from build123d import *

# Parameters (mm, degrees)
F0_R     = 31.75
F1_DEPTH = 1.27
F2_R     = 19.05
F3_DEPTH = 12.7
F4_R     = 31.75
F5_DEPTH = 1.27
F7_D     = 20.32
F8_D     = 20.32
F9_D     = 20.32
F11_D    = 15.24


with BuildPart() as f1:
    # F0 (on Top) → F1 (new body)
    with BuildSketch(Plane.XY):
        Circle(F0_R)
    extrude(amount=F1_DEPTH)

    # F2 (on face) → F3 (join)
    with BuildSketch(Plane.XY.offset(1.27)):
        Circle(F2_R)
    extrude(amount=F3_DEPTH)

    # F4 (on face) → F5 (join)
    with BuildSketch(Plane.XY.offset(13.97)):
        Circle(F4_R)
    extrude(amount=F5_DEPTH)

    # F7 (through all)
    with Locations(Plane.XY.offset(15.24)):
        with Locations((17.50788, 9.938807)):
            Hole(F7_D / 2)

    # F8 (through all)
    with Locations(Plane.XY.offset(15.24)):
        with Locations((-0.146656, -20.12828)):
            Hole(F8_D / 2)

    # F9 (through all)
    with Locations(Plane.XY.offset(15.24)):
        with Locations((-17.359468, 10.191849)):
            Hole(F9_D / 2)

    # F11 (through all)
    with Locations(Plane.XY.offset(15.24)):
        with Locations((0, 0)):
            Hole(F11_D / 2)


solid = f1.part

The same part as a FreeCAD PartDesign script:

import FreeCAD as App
import Part
import Sketcher
from FreeCAD import Vector
Q = App.Units.Quantity

doc = App.newDocument("Part")
body = doc.addObject("PartDesign::Body", "Body")

# Sketch on XY plane
sketch1 = body.newObject("Sketcher::SketchObject", "Sketch")
sketch1.AttachmentSupport = (doc.getObject("XY_Plane"), [""])
sketch1.MapMode = "FlatFace"
sketch1.addGeometry(Part.Circle(Vector(0, 0, 0), Vector(0, 0, 1), 31.75), False)
sketch1.addConstraint(Sketcher.Constraint("Coincident", 0, 3, -1, 1))
sketch1.addConstraint(Sketcher.Constraint("Diameter", 0, Q("2.5 in")))
pad1 = body.newObject("PartDesign::Pad", "Pad")
pad1.Profile = sketch1
pad1.Length = Q("0.05 in")

# Sketch on XY plane
sketch2 = body.newObject("Sketcher::SketchObject", "Sketch001")
sketch2.AttachmentSupport = (doc.getObject("XY_Plane"), [""])
sketch2.MapMode = "FlatFace"
sketch2.AttachmentOffset = App.Placement(Vector(0, 0, 0.05 * 25.4), App.Rotation())
sketch2.addGeometry(Part.Circle(Vector(0, 0, 0), Vector(0, 0, 1), 19.05), False)
sketch2.addConstraint(Sketcher.Constraint("Coincident", 0, 3, -1, 1))
sketch2.addConstraint(Sketcher.Constraint("Diameter", 0, Q("1.5 in")))
pad2 = body.newObject("PartDesign::Pad", "Pad001")
pad2.Profile = sketch2
pad2.Length = Q("0.5 in")

# Sketch on XY plane
sketch3 = body.newObject("Sketcher::SketchObject", "Sketch002")
sketch3.AttachmentSupport = (doc.getObject("XY_Plane"), [""])
sketch3.MapMode = "FlatFace"
sketch3.AttachmentOffset = App.Placement(Vector(0, 0, 0.55 * 25.4), App.Rotation())
sketch3.addGeometry(Part.Circle(Vector(0, 0, 0), Vector(0, 0, 1), 31.75), False)
sketch3.addConstraint(Sketcher.Constraint("Coincident", 0, 3, -1, 1))
sketch3.addConstraint(Sketcher.Constraint("Diameter", 0, Q("2.5 in")))
pad3 = body.newObject("PartDesign::Pad", "Pad002")
pad3.Profile = sketch3
pad3.Length = Q("0.05 in")

# Sketch on XY plane
sketch4 = body.newObject("Sketcher::SketchObject", "Sketch003")
sketch4.AttachmentSupport = (doc.getObject("XY_Plane"), [""])
sketch4.MapMode = "FlatFace"
sketch4.AttachmentOffset = App.Placement(Vector(0, 0, 0.6 * 25.4), App.Rotation())
sketch4.addGeometry(Part.Circle(Vector(17.50788, 9.938807, 0), Vector(0, 0, 1), 10.16), False)
sketch4.addConstraint(Sketcher.Constraint("Diameter", 0, Q("0.8 in")))
sketch4.addConstraint(Sketcher.Constraint("DistanceX", -1, 1, 0, 3, 17.50788))
sketch4.addConstraint(Sketcher.Constraint("DistanceY", -1, 1, 0, 3, 9.938807))
doc.recompute()
hole = body.newObject("PartDesign::Hole", "Hole")
hole.Profile = sketch4
hole.ThreadType = "None"
hole.Diameter = Q("0.8 in")
hole.DepthType = "ThroughAll"

# Sketch on XY plane
sketch5 = body.newObject("Sketcher::SketchObject", "Sketch004")
sketch5.AttachmentSupport = (doc.getObject("XY_Plane"), [""])
sketch5.MapMode = "FlatFace"
sketch5.AttachmentOffset = App.Placement(Vector(0, 0, 0.6 * 25.4), App.Rotation())
sketch5.addGeometry(Part.Circle(Vector(-0.146656, -20.12828, 0), Vector(0, 0, 1), 10.16), False)
sketch5.addConstraint(Sketcher.Constraint("Diameter", 0, Q("0.8 in")))
sketch5.addConstraint(Sketcher.Constraint("DistanceY", 0, 3, -1, 1, 20.12828))
sketch5.addConstraint(Sketcher.Constraint("DistanceX", 0, 3, -1, 1, 0.146656))
doc.recompute()
hole2 = body.newObject("PartDesign::Hole", "Hole001")
hole2.Profile = sketch5
hole2.ThreadType = "None"
hole2.Diameter = Q("0.8 in")
hole2.DepthType = "ThroughAll"

# Sketch on XY plane
sketch6 = body.newObject("Sketcher::SketchObject", "Sketch005")
sketch6.AttachmentSupport = (doc.getObject("XY_Plane"), [""])
sketch6.MapMode = "FlatFace"
sketch6.AttachmentOffset = App.Placement(Vector(0, 0, 0.6 * 25.4), App.Rotation())
sketch6.addGeometry(Part.Circle(Vector(-17.359468, 10.191849, 0), Vector(0, 0, 1), 10.16), False)
sketch6.addConstraint(Sketcher.Constraint("Diameter", 0, Q("0.8 in")))
sketch6.addConstraint(Sketcher.Constraint("DistanceY", -1, 1, 0, 3, 10.191849))
sketch6.addConstraint(Sketcher.Constraint("DistanceX", 0, 3, -1, 1, 17.359468))
doc.recompute()
hole3 = body.newObject("PartDesign::Hole", "Hole002")
hole3.Profile = sketch6
hole3.ThreadType = "None"
hole3.Diameter = Q("0.8 in")
hole3.DepthType = "ThroughAll"

# Sketch on XY plane
sketch7 = body.newObject("Sketcher::SketchObject", "Sketch006")
sketch7.AttachmentSupport = (doc.getObject("XY_Plane"), [""])
sketch7.MapMode = "FlatFace"
sketch7.AttachmentOffset = App.Placement(Vector(0, 0, 0.6 * 25.4), App.Rotation())
sketch7.addGeometry(Part.Circle(Vector(0, 0, 0), Vector(0, 0, 1), 7.62), False)
sketch7.addConstraint(Sketcher.Constraint("Coincident", 0, 3, -1, 1))
sketch7.addConstraint(Sketcher.Constraint("Diameter", 0, Q("0.6 in")))
doc.recompute()
hole4 = body.newObject("PartDesign::Hole", "Hole003")
hole4.Profile = sketch7
hole4.ThreadType = "None"
hole4.Diameter = Q("0.6 in")
hole4.DepthType = "ThroughAll"

doc.recompute()
